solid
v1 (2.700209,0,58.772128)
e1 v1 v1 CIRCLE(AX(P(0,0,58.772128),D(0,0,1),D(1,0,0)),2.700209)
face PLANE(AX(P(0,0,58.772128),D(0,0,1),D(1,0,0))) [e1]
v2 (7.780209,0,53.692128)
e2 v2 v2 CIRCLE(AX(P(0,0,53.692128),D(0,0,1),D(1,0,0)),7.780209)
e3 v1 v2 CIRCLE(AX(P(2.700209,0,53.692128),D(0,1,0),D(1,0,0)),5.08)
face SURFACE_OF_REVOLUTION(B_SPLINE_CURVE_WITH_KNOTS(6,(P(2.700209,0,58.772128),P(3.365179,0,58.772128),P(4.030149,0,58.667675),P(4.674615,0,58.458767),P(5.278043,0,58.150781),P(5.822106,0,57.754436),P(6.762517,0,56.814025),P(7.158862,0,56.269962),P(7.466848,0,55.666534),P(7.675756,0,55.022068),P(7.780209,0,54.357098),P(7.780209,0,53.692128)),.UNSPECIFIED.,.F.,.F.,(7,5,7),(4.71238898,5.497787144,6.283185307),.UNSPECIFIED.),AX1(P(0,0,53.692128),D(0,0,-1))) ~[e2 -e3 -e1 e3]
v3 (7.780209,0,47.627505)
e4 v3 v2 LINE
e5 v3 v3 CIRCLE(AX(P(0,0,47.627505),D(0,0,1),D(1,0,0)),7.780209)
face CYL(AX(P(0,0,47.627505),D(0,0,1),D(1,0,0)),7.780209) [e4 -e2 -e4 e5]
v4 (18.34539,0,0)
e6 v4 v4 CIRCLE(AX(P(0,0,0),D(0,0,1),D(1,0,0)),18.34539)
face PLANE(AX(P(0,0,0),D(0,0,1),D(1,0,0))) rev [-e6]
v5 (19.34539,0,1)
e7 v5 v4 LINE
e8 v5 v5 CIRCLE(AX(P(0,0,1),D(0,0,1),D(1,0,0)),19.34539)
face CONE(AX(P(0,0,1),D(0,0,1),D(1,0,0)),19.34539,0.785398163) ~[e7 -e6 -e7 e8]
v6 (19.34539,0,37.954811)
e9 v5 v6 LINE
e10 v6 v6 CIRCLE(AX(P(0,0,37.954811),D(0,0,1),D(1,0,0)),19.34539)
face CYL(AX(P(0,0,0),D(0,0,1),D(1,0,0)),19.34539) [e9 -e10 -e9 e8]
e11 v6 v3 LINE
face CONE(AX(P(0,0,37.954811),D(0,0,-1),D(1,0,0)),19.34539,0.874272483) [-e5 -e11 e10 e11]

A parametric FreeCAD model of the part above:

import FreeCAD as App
import Part
import Sketcher


def edges_at(feature, points):
    """Names of the edges that pass closest to the given points."""
    edges = feature.Shape.Edges
    near = lambda p: min(range(len(edges)), key=lambda i: edges[i].distToShape(Part.Vertex(*p))[0])
    return sorted({f"Edge{near(p) + 1}" for p in points})


def add_polygon(sketch, points):
    """Adds a closed chain of lines whose ends are joined by coincident constraints."""
    first, n = sketch.GeometryCount, len(points)
    for a, b in zip(points, points[1:] + points[:1]):
        sketch.addGeometry(Part.LineSegment(App.Vector(*a, 0), App.Vector(*b, 0)), False)
    for i in range(n):
        sketch.addConstraint(Sketcher.Constraint("Coincident", first + i, 2, first + (i + 1) % n, 1))

doc = App.newDocument("Part")
body = doc.addObject("PartDesign::Body", "Body")

# Sketch on XZ plane
sketch1 = body.newObject("Sketcher::SketchObject", "Sketch")
sketch1.AttachmentSupport = (doc.getObject("XZ_Plane"), [""])
sketch1.MapMode = "FlatFace"
add_polygon(sketch1, [(7.780209, 58.772128), (0, 58.772128), (0, 0), (19.34539, 0), (19.34539, 37.954811), (7.780209, 47.627505)])  # lines 0-5
sketch1.addConstraint([
    Sketcher.Constraint("Horizontal", 0),
    Sketcher.Constraint("Vertical", 1),
    Sketcher.Constraint("Horizontal", 2),
    Sketcher.Constraint("Vertical", 3),
    Sketcher.Constraint("Vertical", 5),
    Sketcher.Constraint("Coincident", 1, 2, -1, 1),
    Sketcher.Constraint("DistanceX", 0, 2, 0, 1, 7.780209),
    Sketcher.Constraint("DistanceX", 2, 1, 2, 2, 19.34539),
    Sketcher.Constraint("DistanceY", 1, 2, 1, 1, 58.772128),
    Sketcher.Constraint("DistanceY", 3, 1, 3, 2, 37.954811),
    Sketcher.Constraint("Distance", 4, 15.07695),
])
revolution = body.newObject("PartDesign::Revolution", "Revolution")
revolution.Profile = sketch1
revolution.ReferenceAxis = (sketch1, ["V_Axis"])
revolution.Angle = 360
doc.recompute()

fillet = body.newObject("PartDesign::Fillet", "Fillet")
fillet.Base = (revolution, edges_at(revolution, [(-7.78, 0, 58.772)]))
fillet.Radius = 5.08
doc.recompute()

chamfer = body.newObject("PartDesign::Chamfer", "Chamfer")
chamfer.Base = (fillet, edges_at(fillet, [(-19.345, 0, 0)]))
chamfer.Size = 1

doc.recompute()
